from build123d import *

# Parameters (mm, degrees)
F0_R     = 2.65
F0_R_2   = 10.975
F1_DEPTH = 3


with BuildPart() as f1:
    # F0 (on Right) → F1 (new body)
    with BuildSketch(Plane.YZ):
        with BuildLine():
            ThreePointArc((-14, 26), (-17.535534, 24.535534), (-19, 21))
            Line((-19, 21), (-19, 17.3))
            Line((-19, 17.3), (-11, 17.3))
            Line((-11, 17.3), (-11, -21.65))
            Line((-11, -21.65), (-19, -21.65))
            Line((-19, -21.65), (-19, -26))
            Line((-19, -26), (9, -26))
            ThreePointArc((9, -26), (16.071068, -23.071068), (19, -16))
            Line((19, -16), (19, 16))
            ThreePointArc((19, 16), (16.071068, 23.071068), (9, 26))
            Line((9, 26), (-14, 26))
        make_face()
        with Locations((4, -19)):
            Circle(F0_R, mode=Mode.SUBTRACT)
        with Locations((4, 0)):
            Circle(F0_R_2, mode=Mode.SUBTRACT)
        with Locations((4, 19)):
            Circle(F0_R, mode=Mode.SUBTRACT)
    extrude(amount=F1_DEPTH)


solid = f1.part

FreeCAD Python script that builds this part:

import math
import FreeCAD as App
import Part
import Sketcher
Q = App.Units.Quantity

doc = App.newDocument("Part")
body = doc.addObject("PartDesign::Body", "Body")

# Sketch on YZ plane
sketch1 = doc.addObject("Sketcher::SketchObject", "Sketch")
body.addObject(sketch1)
sketch1.AttachmentSupport = (doc.YZ_Plane, [""])
sketch1.MapMode = "FlatFace"
sketch1.addGeometry(Part.ArcOfCircle(Part.Circle(App.Vector(-14, 21, 0), App.Vector(0, 0, 1), 5), math.radians(90), math.radians(180)), False)
sketch1.addGeometry(Part.LineSegment(App.Vector(-19, 21, 0), App.Vector(-19, 17.3, 0)), False)
sketch1.addGeometry(Part.LineSegment(App.Vector(-19, 17.3, 0), App.Vector(-11, 17.3, 0)), False)
sketch1.addGeometry(Part.LineSegment(App.Vector(-11, 17.3, 0), App.Vector(-11, -21.6, 0)), False)
sketch1.addGeometry(Part.LineSegment(App.Vector(-11, -21.6, 0), App.Vector(-19, -21.6, 0)), False)
sketch1.addGeometry(Part.LineSegment(App.Vector(-19, -21.6, 0), App.Vector(-19, -26, 0)), False)
sketch1.addGeometry(Part.LineSegment(App.Vector(-19, -26, 0), App.Vector(9, -26, 0)), False)
sketch1.addGeometry(Part.ArcOfCircle(Part.Circle(App.Vector(9, -16, 0), App.Vector(0, 0, 1), 10), math.radians(-90), math.radians(0)), False)
sketch1.addGeometry(Part.LineSegment(App.Vector(19, -16, 0), App.Vector(19, 16, 0)), False)
sketch1.addGeometry(Part.ArcOfCircle(Part.Circle(App.Vector(9, 16, 0), App.Vector(0, 0, 1), 10), math.radians(0), math.radians(90)), False)
sketch1.addGeometry(Part.LineSegment(App.Vector(9, 26, 0), App.Vector(-14, 26, 0)), False)
sketch1.addGeometry(Part.Circle(App.Vector(4, -19, 0), App.Vector(0, 0, 1), 2.6), False)
sketch1.addGeometry(Part.Circle(App.Vector(4, 0, 0), App.Vector(0, 0, 1), 11), False)
sketch1.addGeometry(Part.Circle(App.Vector(4, 19, 0), App.Vector(0, 0, 1), 2.6), False)
sketch1.addConstraint(Sketcher.Constraint("Tangent", 0, 2, 1, 1))
sketch1.addConstraint(Sketcher.Constraint("Coincident", 1, 2, 2, 1))
sketch1.addConstraint(Sketcher.Constraint("Coincident", 2, 2, 3, 1))
sketch1.addConstraint(Sketcher.Constraint("Coincident", 3, 2, 4, 1))
sketch1.addConstraint(Sketcher.Constraint("Coincident", 4, 2, 5, 1))
sketch1.addConstraint(Sketcher.Constraint("Coincident", 5, 2, 6, 1))
sketch1.addConstraint(Sketcher.Constraint("Tangent", 6, 2, 7, 1))
sketch1.addConstraint(Sketcher.Constraint("Tangent", 7, 2, 8, 1))
sketch1.addConstraint(Sketcher.Constraint("Tangent", 8, 2, 9, 1))
sketch1.addConstraint(Sketcher.Constraint("Tangent", 9, 2, 10, 1))
sketch1.addConstraint(Sketcher.Constraint("Tangent", 10, 2, 0, 1))
sketch1.addConstraint(Sketcher.Constraint("Vertical", 1))
sketch1.addConstraint(Sketcher.Constraint("Horizontal", 2))
sketch1.addConstraint(Sketcher.Constraint("Vertical", 3))
sketch1.addConstraint(Sketcher.Constraint("Horizontal", 4))
sketch1.addConstraint(Sketcher.Constraint("Vertical", 5))
sketch1.addConstraint(Sketcher.Constraint("Horizontal", 6))
sketch1.addConstraint(Sketcher.Constraint("Vertical", 8))
sketch1.addConstraint(Sketcher.Constraint("Horizontal", 10))
sketch1.addConstraint(Sketcher.Constraint("Equal", 7, 9))
sketch1.addConstraint(Sketcher.Constraint("Equal", 11, 13))
sketch1.addConstraint(Sketcher.Constraint("Symmetric", 11, 3, 13, 3, -1))
sketch1.addConstraint(Sketcher.Constraint("PointOnObject", 12, 3, -1))
sketch1.addConstraint(Sketcher.Constraint("Vertical", 11, 3, 12, 3))
sketch1.addConstraint(Sketcher.Constraint("Vertical", 1, 2, 4, 2))
sketch1.addConstraint(Sketcher.Constraint("Radius", 0, Q("5 mm")))
sketch1.addConstraint(Sketcher.Constraint("Radius", 7, Q("9.999999 mm")))
sketch1.addConstraint(Sketcher.Constraint("Diameter", 11, Q("5.3 mm")))
sketch1.addConstraint(Sketcher.Constraint("Diameter", 12, Q("21.95 mm")))
sketch1.addConstraint(Sketcher.Constraint("DistanceX", 2, 1, 2, 2, Q("8 mm")))
sketch1.addConstraint(Sketcher.Constraint("DistanceX", 6, 1, 6, 2, Q("28 mm")))
sketch1.addConstraint(Sketcher.Constraint("DistanceY", 8, 1, 8, 2, Q("32 mm")))
sketch1.addConstraint(Sketcher.Constraint("DistanceY", 1, 2, 1, 1, Q("3.7 mm")))
sketch1.addConstraint(Sketcher.Constraint("DistanceX", 0, 3, -1, 1, Q("14 mm")))
sketch1.addConstraint(Sketcher.Constraint("DistanceY", -1, 1, 0, 3, Q("21 mm")))
sketch1.addConstraint(Sketcher.Constraint("DistanceX", -1, 1, 11, 3, Q("4 mm")))
sketch1.addConstraint(Sketcher.Constraint("DistanceY", 11, 3, -1, 1, Q("19 mm")))
sketch1.addConstraint(Sketcher.Constraint("DistanceY", 3, 2, 3, 1, Q("38.95 mm")))
pad1 = doc.addObject("PartDesign::Pad", "Pad")
body.addObject(pad1)
pad1.Profile = sketch1
pad1.Length = 3

doc.recompute()
